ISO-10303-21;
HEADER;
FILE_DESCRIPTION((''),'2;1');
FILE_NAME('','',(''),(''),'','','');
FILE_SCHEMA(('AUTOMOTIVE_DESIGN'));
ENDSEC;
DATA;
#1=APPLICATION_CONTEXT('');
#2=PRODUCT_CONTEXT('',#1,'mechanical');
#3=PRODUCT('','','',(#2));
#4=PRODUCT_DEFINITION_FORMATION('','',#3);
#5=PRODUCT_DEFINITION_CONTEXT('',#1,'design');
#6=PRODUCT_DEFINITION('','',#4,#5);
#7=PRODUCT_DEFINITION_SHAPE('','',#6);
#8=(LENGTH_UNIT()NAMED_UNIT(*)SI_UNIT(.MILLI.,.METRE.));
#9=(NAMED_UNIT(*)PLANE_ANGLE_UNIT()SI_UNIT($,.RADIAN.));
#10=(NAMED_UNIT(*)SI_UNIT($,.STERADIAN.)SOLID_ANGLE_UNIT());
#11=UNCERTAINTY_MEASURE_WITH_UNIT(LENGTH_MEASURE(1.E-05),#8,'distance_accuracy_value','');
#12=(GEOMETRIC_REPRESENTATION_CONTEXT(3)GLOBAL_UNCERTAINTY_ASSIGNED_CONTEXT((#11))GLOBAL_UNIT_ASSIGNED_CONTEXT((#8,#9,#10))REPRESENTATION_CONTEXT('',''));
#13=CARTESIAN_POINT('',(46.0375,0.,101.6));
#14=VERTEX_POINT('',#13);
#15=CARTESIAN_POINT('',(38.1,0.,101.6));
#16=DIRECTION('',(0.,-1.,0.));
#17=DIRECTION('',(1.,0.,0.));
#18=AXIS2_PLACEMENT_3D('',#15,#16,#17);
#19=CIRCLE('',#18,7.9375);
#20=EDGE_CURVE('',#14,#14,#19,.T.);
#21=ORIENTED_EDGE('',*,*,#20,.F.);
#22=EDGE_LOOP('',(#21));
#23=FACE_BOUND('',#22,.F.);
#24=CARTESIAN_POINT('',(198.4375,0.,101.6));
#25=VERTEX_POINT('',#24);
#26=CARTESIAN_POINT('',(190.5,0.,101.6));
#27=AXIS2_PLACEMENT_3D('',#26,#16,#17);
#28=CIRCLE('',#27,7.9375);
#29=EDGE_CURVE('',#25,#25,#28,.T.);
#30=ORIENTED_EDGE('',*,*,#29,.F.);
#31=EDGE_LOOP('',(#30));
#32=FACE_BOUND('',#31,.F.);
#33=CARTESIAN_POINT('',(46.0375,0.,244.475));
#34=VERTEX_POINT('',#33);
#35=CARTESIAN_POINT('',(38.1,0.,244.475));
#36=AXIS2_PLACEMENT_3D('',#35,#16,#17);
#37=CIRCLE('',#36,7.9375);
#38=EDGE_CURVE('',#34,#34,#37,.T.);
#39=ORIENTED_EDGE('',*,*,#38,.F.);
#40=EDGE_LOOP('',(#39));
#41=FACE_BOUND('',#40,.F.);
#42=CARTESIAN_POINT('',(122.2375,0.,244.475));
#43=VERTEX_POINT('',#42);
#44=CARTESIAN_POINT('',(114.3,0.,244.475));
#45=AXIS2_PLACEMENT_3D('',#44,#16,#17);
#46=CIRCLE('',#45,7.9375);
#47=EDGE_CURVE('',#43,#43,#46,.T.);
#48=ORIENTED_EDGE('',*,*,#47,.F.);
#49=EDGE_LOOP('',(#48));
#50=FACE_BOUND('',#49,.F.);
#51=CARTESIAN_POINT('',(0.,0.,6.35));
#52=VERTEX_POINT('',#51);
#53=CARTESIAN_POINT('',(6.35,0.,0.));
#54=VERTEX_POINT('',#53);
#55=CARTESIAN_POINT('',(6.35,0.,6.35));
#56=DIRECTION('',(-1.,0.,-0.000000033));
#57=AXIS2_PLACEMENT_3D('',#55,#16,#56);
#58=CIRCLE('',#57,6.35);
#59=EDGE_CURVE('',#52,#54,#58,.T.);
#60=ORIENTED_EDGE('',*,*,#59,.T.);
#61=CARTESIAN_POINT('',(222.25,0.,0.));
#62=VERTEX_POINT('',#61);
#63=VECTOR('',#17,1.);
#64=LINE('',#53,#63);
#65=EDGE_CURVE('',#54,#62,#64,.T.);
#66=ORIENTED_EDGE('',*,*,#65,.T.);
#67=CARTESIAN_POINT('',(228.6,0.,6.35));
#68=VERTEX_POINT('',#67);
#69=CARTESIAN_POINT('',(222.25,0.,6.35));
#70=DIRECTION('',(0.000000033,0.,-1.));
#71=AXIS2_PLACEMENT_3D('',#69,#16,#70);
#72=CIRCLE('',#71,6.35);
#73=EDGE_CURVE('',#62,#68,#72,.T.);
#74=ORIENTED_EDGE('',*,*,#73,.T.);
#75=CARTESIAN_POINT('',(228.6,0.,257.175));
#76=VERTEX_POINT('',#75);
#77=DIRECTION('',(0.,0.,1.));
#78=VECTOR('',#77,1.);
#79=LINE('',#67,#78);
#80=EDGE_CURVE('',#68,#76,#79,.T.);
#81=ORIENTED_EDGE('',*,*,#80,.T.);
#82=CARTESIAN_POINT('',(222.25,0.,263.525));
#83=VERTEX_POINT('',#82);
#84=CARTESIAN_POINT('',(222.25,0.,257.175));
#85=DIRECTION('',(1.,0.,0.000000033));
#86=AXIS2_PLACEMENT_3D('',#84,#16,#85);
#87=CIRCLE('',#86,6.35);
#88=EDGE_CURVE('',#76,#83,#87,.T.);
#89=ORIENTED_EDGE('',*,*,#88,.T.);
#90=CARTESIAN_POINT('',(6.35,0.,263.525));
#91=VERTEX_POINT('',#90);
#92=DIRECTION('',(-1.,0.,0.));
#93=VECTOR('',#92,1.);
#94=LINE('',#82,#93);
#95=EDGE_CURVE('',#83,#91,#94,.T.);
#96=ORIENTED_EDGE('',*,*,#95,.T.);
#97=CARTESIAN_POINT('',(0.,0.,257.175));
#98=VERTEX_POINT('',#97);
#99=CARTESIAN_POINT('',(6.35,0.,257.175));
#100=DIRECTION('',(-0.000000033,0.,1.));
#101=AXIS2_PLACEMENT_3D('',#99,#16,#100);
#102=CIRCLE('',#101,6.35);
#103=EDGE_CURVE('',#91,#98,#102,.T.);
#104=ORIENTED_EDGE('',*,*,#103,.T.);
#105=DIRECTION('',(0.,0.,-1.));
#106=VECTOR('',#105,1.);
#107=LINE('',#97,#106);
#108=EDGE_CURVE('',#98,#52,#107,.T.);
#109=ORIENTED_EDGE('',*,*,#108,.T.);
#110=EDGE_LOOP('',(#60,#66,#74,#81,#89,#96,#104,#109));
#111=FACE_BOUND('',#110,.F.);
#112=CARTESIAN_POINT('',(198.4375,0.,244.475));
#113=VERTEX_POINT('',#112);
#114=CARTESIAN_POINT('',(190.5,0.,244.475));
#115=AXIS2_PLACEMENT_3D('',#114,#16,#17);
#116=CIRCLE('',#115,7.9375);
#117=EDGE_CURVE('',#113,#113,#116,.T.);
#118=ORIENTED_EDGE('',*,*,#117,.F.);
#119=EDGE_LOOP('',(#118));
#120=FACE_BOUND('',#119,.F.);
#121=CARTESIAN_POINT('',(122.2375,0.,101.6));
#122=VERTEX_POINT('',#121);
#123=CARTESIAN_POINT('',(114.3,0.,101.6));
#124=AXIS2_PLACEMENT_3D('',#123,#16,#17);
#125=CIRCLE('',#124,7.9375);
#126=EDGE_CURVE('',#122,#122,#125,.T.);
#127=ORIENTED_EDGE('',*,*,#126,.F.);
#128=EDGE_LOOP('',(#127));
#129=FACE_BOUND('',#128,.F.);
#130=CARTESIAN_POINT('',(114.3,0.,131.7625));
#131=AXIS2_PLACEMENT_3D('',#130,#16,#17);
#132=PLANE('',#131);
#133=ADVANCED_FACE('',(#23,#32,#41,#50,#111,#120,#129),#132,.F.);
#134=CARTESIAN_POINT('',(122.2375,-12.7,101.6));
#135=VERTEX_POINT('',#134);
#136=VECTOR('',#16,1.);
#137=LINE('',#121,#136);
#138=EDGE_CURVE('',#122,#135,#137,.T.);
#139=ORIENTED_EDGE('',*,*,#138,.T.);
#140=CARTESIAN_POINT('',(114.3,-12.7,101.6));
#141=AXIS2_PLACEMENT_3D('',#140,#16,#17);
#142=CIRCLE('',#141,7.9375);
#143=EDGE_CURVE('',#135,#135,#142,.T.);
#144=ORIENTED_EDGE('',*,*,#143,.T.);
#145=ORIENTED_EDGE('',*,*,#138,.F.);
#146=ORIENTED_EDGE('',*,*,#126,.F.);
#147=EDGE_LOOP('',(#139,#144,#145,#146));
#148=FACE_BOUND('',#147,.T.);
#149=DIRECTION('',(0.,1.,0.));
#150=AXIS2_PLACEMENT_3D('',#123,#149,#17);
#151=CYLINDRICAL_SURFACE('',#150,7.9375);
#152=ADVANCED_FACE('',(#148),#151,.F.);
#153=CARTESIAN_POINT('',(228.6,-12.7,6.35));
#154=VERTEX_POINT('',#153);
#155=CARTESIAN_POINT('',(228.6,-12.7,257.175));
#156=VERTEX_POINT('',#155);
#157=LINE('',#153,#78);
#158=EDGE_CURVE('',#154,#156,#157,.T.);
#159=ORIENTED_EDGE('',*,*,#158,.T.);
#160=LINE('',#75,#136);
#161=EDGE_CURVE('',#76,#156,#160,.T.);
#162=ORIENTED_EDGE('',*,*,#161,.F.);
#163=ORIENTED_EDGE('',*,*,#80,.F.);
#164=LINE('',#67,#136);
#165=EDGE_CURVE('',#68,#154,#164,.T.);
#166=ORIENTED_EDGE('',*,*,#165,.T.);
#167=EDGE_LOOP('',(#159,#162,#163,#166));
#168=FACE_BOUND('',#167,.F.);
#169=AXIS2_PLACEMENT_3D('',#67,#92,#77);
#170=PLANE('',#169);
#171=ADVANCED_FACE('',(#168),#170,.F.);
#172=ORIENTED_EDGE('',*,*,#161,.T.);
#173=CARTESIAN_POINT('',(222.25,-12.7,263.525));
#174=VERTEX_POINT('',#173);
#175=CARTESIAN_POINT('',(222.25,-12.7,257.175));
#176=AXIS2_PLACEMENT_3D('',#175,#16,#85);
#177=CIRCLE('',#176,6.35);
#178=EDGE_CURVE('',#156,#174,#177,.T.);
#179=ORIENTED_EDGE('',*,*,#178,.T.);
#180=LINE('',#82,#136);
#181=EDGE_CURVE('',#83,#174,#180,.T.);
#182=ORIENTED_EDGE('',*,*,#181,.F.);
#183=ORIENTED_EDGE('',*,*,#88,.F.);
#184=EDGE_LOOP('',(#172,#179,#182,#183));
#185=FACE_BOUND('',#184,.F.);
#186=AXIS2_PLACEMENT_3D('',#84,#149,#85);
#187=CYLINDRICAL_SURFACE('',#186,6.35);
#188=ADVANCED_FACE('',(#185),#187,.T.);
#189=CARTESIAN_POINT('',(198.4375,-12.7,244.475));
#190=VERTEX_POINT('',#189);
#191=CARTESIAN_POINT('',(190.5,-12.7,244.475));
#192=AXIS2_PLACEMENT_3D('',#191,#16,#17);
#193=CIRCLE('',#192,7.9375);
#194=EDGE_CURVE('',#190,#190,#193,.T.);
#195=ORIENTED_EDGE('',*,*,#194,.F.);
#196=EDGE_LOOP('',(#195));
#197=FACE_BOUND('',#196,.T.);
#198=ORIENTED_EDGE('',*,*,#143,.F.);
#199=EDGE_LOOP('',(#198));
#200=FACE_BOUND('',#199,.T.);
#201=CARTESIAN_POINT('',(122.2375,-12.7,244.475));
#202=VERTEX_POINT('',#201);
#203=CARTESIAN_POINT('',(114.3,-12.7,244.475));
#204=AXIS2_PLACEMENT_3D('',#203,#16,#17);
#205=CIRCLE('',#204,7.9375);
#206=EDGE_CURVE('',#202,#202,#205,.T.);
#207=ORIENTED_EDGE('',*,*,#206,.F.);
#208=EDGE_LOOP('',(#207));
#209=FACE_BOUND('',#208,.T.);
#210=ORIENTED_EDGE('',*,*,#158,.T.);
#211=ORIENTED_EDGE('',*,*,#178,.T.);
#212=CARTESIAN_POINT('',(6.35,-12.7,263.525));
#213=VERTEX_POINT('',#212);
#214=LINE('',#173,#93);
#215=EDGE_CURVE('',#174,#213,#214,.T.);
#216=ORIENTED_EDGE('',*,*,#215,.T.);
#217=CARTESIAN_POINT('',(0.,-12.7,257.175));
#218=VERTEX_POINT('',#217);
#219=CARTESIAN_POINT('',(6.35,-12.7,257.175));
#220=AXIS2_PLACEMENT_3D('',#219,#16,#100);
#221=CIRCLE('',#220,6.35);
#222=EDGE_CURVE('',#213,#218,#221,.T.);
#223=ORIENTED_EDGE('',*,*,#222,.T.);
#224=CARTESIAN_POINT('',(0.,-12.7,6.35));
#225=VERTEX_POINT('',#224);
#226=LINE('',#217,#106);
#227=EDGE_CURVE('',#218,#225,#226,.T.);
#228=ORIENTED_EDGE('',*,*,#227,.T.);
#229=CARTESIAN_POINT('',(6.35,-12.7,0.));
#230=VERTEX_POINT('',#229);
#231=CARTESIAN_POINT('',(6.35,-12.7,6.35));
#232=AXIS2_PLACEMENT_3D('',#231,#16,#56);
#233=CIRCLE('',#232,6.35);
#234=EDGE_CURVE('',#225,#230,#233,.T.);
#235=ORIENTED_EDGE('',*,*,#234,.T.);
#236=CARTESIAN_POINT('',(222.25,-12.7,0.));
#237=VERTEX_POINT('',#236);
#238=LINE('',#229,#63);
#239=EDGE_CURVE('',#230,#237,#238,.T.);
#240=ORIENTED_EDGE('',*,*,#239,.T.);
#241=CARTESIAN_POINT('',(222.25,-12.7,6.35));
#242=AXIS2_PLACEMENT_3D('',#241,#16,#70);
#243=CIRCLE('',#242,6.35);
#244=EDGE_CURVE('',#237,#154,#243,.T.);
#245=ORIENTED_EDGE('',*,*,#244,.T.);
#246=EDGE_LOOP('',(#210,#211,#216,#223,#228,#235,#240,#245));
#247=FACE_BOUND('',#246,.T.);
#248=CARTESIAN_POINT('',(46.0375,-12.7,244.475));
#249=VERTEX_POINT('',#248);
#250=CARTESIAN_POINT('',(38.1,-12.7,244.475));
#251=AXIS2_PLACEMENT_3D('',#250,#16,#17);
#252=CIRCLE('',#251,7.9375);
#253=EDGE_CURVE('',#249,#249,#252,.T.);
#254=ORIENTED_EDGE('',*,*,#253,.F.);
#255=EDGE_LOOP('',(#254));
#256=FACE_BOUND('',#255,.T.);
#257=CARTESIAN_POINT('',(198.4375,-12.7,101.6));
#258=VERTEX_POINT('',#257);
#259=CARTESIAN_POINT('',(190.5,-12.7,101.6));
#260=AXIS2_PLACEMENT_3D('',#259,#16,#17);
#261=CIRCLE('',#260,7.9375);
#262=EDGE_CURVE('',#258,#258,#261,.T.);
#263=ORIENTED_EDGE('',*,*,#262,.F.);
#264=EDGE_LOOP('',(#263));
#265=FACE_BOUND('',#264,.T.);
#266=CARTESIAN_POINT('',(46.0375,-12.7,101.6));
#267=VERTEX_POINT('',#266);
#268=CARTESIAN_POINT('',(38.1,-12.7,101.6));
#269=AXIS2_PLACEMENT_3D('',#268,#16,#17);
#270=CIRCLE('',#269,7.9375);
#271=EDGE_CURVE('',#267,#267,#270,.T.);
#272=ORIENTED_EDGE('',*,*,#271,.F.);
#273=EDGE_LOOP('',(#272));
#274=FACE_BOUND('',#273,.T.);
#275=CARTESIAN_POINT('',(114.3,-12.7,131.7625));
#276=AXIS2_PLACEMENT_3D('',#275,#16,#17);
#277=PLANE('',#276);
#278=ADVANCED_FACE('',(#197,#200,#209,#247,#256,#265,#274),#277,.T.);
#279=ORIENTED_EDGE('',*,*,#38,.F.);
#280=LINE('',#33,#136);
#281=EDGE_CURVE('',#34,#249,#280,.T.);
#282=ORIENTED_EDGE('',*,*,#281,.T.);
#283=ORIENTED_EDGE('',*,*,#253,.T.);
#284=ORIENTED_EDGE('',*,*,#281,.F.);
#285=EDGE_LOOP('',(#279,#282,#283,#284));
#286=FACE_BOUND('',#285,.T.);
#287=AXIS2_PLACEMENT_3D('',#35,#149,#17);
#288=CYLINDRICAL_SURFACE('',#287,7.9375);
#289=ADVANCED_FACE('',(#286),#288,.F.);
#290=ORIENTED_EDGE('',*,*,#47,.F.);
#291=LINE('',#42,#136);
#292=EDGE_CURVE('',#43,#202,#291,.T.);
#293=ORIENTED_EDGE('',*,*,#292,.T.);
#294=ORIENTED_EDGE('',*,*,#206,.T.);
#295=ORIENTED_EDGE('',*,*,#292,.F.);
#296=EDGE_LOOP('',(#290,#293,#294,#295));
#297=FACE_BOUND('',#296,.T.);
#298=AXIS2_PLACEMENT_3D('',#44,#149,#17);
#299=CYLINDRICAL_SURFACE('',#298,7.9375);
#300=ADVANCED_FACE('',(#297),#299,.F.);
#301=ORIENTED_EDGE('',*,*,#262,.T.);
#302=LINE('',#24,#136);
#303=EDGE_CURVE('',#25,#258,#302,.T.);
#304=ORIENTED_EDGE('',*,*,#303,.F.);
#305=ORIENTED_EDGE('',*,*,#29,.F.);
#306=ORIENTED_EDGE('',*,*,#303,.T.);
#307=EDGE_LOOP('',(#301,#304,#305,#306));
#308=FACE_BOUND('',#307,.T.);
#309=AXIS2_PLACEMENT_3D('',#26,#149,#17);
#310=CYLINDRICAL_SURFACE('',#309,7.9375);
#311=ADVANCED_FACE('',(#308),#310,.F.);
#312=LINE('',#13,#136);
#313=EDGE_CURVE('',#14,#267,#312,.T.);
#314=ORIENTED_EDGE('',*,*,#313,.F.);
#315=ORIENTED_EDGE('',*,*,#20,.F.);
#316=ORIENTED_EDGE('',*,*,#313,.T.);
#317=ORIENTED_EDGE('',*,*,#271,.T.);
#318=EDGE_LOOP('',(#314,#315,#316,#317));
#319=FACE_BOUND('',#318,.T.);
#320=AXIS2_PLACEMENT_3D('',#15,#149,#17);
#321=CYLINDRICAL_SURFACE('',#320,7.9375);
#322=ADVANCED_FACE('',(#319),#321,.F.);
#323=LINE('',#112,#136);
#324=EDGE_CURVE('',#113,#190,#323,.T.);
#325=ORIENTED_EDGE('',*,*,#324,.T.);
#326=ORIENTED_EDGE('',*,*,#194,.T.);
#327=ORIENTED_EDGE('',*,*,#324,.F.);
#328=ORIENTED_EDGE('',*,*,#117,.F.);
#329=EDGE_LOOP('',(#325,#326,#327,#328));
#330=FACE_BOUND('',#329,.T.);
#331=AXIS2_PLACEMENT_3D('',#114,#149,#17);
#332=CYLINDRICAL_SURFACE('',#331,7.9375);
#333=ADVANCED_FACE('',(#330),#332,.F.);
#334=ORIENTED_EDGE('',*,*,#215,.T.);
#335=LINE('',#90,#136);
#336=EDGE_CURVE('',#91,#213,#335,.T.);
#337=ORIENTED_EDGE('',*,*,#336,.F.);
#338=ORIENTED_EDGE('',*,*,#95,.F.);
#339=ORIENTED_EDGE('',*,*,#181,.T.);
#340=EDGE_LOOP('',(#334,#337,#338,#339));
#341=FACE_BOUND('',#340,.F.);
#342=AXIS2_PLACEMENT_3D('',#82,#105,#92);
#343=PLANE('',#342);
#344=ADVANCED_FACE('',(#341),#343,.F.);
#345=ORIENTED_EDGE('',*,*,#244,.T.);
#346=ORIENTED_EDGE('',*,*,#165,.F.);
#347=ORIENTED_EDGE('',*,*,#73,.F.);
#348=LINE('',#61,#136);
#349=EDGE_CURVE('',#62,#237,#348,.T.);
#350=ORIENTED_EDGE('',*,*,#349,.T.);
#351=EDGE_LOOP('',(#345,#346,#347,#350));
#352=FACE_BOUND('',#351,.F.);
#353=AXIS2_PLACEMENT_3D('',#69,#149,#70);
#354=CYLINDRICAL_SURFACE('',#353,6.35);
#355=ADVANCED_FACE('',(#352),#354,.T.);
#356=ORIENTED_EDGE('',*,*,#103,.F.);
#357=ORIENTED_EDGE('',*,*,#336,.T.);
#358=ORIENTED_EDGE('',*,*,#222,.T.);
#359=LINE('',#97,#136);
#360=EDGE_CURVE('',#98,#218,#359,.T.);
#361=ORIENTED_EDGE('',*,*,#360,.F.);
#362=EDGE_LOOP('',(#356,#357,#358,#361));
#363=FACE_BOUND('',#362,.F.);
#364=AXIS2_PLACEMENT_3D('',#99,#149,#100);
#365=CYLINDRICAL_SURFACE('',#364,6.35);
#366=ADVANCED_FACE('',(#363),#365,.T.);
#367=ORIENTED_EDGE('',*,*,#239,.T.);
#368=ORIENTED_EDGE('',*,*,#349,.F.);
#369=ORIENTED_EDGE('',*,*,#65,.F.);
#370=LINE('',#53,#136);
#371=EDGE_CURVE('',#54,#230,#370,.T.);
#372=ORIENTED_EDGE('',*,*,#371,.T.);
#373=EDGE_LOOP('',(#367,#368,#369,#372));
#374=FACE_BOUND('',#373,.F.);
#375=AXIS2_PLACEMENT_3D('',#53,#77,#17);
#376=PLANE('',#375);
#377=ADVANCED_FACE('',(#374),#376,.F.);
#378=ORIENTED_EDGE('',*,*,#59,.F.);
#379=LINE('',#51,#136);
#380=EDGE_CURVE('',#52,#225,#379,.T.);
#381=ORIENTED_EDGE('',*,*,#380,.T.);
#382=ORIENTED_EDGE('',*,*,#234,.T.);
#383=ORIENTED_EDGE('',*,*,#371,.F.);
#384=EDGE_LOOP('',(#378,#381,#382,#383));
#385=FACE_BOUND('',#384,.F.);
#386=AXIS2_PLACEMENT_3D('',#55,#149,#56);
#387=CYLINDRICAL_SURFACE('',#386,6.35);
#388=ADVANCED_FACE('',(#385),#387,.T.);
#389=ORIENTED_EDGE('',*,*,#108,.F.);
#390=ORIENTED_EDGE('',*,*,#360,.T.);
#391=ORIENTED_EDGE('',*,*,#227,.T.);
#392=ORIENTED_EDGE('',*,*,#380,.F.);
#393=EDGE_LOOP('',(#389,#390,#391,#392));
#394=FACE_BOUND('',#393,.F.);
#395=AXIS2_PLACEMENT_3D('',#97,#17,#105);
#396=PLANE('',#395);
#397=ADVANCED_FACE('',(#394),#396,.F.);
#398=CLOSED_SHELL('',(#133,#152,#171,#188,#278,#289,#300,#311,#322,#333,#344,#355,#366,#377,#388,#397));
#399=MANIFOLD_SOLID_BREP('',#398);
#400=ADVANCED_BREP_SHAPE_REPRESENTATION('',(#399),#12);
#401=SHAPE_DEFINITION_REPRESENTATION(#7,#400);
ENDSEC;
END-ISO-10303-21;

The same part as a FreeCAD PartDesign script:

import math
import FreeCAD as App
import Part
import Sketcher
Q = App.Units.Quantity

doc = App.newDocument("Part")
body = doc.addObject("PartDesign::Body", "Body")

# Sketch on XZ plane
sketch1 = body.newObject("Sketcher::SketchObject", "Sketch")
sketch1.AttachmentSupport = (doc.getObject("XZ_Plane"), [""])
sketch1.MapMode = "FlatFace"
sketch1.addGeometry([
    Part.ArcOfCircle(Part.Circle(App.Vector(6, 6, 0), App.Vector(0, 0, 1), 6), math.radians(-180), math.radians(-90)),  # 0
    Part.LineSegment(App.Vector(6, 0, 0), App.Vector(222, 0, 0)),  # 1
    Part.ArcOfCircle(Part.Circle(App.Vector(222, 6, 0), App.Vector(0, 0, 1), 6), math.radians(-90), math.radians(0)),  # 2
    Part.LineSegment(App.Vector(229, 6, 0), App.Vector(229, 257, 0)),  # 3
    Part.ArcOfCircle(Part.Circle(App.Vector(222, 257, 0), App.Vector(0, 0, 1), 6), math.radians(0), math.radians(90)),  # 4
    Part.LineSegment(App.Vector(222, 264, 0), App.Vector(6, 264, 0)),  # 5
    Part.ArcOfCircle(Part.Circle(App.Vector(6, 257, 0), App.Vector(0, 0, 1), 6), math.radians(90), math.radians(180)),  # 6
    Part.LineSegment(App.Vector(0, 257, 0), App.Vector(0, 6, 0)),  # 7
    Part.Circle(App.Vector(38, 102, 0), App.Vector(0, 0, 1), 8),  # 8
    Part.Circle(App.Vector(114, 102, 0), App.Vector(0, 0, 1), 8),  # 9
    Part.Circle(App.Vector(190, 102, 0), App.Vector(0, 0, 1), 8),  # 10
    Part.Circle(App.Vector(38, 244, 0), App.Vector(0, 0, 1), 8),  # 11
    Part.Circle(App.Vector(114, 244, 0), App.Vector(0, 0, 1), 8),  # 12
    Part.Circle(App.Vector(190, 244, 0), App.Vector(0, 0, 1), 8),  # 13
], False)
sketch1.addConstraint([
    Sketcher.Constraint("Tangent", 0, 2, 1, 1),
    Sketcher.Constraint("Tangent", 1, 2, 2, 1),
    Sketcher.Constraint("Tangent", 2, 2, 3, 1),
    Sketcher.Constraint("Tangent", 3, 2, 4, 1),
    Sketcher.Constraint("Tangent", 4, 2, 5, 1),
    Sketcher.Constraint("Tangent", 5, 2, 6, 1),
    Sketcher.Constraint("Tangent", 6, 2, 7, 1),
    Sketcher.Constraint("Tangent", 7, 2, 0, 1),
    Sketcher.Constraint("Horizontal", 1),
    Sketcher.Constraint("Vertical", 3),
    Sketcher.Constraint("Horizontal", 5),
    Sketcher.Constraint("Vertical", 7),
    Sketcher.Constraint("Equal", 0, 2),
    Sketcher.Constraint("Equal", 2, 4),
    Sketcher.Constraint("Equal", 4, 6),
    Sketcher.Constraint("Equal", 8, 9),
    Sketcher.Constraint("Equal", 9, 10),
    Sketcher.Constraint("Equal", 10, 11),
    Sketcher.Constraint("Equal", 11, 12),
    Sketcher.Constraint("Equal", 12, 13),
    Sketcher.Constraint("PointOnObject", 0, 2, -1),
    Sketcher.Constraint("PointOnObject", 6, 2, -2),
    Sketcher.Constraint("Horizontal", 8, 3, 9, 3),
    Sketcher.Constraint("Horizontal", 9, 3, 10, 3),
    Sketcher.Constraint("Horizontal", 11, 3, 12, 3),
    Sketcher.Constraint("Horizontal", 12, 3, 13, 3),
    Sketcher.Constraint("Vertical", 8, 3, 11, 3),
    Sketcher.Constraint("Vertical", 9, 3, 12, 3),
    Sketcher.Constraint("Vertical", 10, 3, 13, 3),
    Sketcher.Constraint("Radius", 0, Q("0.25 in")),
    Sketcher.Constraint("Diameter", 8, Q("0.625 in")),
    Sketcher.Constraint("DistanceX", 1, 1, 1, 2, Q("8.5 in")),
    Sketcher.Constraint("DistanceY", -1, 1, 8, 3, Q("4 in")),
    Sketcher.Constraint("DistanceX", 8, 3, 9, 3, Q("3 in")),
    Sketcher.Constraint("DistanceX", 9, 3, 10, 3, Q("3 in")),
    Sketcher.Constraint("DistanceX", -1, 1, 8, 3, Q("1.5 in")),
    Sketcher.Constraint("DistanceY", 11, 3, 6, 3, Q("0.5 in")),
    Sketcher.Constraint("DistanceY", 3, 1, 3, 2, Q("9.875 in")),
])
pad1 = body.newObject("PartDesign::Pad", "Pad")
pad1.Profile = sketch1
pad1.Length = Q("0.5 in")

doc.recompute()
